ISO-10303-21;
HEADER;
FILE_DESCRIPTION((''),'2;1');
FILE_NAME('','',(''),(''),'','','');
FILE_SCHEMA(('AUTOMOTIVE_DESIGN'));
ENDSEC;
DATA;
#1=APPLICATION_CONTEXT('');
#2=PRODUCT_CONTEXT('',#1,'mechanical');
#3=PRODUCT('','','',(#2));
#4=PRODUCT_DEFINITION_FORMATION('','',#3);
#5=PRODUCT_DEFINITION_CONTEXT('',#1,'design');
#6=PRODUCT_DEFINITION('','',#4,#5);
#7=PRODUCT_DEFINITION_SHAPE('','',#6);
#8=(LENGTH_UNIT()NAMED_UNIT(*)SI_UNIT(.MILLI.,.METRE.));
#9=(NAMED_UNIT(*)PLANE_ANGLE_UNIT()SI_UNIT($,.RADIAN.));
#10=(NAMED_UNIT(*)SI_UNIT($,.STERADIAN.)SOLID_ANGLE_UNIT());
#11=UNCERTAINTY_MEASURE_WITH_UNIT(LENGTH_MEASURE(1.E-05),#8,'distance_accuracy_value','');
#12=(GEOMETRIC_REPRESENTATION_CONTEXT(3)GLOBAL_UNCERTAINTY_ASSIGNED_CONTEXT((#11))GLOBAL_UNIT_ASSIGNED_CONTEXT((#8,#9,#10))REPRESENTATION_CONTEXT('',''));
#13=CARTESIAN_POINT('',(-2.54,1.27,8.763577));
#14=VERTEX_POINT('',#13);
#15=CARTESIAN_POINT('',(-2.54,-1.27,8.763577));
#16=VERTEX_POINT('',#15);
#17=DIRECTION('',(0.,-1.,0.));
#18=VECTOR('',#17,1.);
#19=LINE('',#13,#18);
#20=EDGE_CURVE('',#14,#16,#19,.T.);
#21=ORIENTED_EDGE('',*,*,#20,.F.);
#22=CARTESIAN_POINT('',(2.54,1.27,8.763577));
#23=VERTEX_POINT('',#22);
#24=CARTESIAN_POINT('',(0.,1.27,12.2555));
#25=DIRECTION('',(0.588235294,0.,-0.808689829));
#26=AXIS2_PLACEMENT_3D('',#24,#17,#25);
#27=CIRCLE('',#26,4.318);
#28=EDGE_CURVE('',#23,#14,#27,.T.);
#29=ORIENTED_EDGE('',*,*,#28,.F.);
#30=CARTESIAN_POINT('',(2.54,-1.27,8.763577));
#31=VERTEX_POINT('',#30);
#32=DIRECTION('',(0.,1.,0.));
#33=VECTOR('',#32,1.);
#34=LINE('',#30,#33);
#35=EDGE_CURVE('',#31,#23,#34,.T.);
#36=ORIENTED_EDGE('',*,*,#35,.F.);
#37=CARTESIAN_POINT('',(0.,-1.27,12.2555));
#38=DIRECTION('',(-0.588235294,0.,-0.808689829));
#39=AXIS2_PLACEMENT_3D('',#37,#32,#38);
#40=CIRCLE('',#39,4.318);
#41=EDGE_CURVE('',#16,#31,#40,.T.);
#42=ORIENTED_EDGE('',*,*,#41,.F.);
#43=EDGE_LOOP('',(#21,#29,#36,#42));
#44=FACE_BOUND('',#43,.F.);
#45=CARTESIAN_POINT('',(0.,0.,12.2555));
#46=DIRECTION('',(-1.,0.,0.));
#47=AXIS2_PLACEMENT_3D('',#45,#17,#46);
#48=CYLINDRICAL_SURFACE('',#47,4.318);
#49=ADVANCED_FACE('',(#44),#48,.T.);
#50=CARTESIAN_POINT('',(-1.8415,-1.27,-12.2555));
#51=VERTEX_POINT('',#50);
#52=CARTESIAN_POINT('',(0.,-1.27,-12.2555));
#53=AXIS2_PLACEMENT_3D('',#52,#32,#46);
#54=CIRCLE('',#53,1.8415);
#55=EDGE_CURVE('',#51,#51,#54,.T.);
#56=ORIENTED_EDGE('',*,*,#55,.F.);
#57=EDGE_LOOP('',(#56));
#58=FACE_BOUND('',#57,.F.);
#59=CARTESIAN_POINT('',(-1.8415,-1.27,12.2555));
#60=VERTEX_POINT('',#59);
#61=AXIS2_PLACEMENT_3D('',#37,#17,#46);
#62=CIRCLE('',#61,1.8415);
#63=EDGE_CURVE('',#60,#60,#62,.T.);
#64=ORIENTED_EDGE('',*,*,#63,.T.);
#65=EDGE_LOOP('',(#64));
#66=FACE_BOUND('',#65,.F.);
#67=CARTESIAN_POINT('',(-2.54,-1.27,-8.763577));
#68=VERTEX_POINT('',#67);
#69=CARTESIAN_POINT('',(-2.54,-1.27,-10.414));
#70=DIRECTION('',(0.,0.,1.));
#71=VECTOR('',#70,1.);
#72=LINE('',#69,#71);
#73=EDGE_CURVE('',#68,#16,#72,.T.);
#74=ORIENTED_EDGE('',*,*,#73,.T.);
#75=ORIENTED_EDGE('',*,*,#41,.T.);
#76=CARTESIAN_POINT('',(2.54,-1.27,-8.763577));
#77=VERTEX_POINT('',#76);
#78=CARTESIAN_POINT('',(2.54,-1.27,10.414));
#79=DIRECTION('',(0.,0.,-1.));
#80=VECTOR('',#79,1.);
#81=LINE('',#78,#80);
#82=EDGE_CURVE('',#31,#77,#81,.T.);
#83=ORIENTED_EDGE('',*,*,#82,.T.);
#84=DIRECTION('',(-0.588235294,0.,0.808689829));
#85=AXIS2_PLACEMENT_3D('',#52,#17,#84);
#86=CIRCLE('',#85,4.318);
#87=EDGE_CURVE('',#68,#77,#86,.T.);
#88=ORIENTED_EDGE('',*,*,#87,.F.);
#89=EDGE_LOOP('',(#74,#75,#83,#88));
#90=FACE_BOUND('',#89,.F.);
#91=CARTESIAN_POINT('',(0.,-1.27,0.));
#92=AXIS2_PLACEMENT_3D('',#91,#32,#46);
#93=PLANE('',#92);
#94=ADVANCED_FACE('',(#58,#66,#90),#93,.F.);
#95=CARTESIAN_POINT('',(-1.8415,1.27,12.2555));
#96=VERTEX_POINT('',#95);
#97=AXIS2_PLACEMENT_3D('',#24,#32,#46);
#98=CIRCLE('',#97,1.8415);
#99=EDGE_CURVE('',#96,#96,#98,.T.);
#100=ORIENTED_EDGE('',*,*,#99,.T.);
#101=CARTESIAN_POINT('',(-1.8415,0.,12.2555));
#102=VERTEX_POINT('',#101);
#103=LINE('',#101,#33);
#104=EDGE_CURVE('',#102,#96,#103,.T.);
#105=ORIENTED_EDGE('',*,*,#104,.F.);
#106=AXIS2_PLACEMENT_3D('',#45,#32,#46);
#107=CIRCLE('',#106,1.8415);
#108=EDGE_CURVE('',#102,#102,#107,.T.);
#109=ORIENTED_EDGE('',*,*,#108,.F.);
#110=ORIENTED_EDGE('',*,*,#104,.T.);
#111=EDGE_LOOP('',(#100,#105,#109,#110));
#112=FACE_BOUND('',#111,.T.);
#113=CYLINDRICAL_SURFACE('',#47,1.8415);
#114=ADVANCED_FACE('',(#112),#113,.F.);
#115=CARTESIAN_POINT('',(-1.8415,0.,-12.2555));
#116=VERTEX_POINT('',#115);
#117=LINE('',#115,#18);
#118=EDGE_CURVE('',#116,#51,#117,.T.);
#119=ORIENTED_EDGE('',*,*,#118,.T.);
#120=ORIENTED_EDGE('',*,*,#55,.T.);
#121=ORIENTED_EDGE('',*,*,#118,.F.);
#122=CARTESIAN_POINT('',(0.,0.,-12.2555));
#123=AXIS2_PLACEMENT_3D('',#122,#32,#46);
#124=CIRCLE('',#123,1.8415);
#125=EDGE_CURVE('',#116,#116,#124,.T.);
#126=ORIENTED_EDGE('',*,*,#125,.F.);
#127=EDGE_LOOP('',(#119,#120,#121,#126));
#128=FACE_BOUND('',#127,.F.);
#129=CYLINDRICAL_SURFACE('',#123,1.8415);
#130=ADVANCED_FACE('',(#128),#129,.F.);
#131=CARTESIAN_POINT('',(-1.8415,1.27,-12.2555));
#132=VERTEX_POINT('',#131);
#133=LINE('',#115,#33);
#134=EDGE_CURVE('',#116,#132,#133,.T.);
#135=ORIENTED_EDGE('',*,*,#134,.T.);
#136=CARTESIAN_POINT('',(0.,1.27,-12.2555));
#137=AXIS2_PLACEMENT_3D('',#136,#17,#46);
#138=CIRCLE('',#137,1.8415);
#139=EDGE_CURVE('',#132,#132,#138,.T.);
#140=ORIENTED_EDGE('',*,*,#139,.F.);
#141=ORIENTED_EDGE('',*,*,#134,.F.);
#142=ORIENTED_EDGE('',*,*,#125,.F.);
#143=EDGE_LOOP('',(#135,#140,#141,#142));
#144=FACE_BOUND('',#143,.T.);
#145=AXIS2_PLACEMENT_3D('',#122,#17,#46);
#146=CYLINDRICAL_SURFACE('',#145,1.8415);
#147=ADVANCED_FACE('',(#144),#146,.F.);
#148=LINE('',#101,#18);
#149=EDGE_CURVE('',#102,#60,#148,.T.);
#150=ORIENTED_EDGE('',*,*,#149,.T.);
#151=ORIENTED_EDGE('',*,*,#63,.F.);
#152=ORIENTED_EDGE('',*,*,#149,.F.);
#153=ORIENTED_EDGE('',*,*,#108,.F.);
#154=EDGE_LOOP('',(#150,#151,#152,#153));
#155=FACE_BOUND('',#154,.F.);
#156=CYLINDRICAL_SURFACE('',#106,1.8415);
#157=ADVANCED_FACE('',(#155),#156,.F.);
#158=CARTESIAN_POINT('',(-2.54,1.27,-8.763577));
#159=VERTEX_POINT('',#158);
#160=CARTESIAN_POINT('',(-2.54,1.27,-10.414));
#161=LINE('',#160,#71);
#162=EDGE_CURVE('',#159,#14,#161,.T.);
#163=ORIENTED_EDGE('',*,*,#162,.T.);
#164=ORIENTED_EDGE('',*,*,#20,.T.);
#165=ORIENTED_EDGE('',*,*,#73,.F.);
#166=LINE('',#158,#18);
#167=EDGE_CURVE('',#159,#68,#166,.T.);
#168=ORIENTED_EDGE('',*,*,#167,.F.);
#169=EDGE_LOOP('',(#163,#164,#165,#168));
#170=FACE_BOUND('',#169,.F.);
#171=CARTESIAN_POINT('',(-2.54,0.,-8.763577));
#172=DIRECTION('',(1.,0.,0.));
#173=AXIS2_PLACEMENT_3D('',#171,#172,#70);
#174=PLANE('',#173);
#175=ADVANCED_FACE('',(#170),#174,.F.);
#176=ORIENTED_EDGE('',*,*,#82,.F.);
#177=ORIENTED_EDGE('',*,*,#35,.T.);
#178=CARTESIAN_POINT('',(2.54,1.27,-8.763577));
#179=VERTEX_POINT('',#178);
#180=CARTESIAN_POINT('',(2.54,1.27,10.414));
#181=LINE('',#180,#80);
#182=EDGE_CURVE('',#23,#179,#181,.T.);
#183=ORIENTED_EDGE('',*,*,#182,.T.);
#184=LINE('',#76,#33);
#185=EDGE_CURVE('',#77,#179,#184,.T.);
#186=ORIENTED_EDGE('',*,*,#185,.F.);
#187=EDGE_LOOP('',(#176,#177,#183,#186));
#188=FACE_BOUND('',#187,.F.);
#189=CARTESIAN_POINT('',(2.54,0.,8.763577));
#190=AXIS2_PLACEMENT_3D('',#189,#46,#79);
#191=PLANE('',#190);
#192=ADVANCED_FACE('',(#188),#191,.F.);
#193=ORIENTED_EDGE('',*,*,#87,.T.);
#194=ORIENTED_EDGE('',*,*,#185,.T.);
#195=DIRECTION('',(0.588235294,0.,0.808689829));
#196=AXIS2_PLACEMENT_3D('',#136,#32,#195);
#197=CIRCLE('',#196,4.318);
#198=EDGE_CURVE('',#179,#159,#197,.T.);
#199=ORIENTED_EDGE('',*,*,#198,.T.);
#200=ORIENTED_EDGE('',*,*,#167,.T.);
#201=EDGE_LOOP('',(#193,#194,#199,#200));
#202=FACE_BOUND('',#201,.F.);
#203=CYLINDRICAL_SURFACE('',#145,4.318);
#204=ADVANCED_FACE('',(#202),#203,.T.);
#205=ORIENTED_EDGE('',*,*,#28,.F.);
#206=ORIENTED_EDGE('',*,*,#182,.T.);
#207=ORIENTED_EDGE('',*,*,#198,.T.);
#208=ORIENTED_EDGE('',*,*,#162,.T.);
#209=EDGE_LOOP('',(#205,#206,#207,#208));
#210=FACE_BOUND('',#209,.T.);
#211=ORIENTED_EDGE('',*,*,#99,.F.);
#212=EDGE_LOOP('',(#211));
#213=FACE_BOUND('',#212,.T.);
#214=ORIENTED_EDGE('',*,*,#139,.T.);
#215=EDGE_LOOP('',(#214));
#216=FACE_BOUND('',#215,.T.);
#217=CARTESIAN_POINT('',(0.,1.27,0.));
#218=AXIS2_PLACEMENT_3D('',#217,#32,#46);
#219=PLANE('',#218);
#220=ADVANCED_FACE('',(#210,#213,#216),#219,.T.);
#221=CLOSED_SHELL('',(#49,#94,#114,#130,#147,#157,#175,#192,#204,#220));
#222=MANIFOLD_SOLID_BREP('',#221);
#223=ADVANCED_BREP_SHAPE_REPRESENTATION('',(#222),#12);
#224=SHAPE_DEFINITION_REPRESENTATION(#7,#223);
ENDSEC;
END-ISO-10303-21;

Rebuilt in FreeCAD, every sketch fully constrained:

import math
import FreeCAD as App
import Part
import Sketcher

V = App.Vector
Q = App.Units.Quantity

doc = App.newDocument("Part")
params = doc.addObject("Spreadsheet::Sheet", "Params")
for row, (alias, value) in enumerate([
    ("sketch1_radius", "0.17 in"),
    ("sketch1_diameter", "0.145 in"),
    ("pad1_length", "0.05 in"),
    ("pad1_length2", "0.05 in"),
], start=1):
    params.set(f"A{row}", alias)
    params.set(f"B{row}", "=" + value)
    params.setAlias(f"B{row}", alias)

body = doc.addObject("PartDesign::Body", "Body")

sketch1 = body.newObject("Sketcher::SketchObject", "Sketch")
sketch1.AttachmentSupport = (doc.getObject("XZ_Plane"), [""])
sketch1.MapMode = "FlatFace"
sketch1.addGeometry(Part.ArcOfCircle(Part.Circle(V(0, 12.3, 0), V(0, 0, 1), 4.3), math.radians(-54), math.radians(234)), False)
sketch1.addGeometry(Part.LineSegment(V(2.5, 8.8, 0), V(2.5, -8.8, 0)), False)
sketch1.addGeometry(Part.ArcOfCircle(Part.Circle(V(0, -12.3, 0), V(0, 0, 1), 4.3), math.radians(126), math.radians(414)), False)
sketch1.addGeometry(Part.LineSegment(V(-2.5, -8.8, 0), V(-2.5, 8.8, 0)), False)
sketch1.addGeometry(Part.Circle(V(0, 12.3, 0), V(0, 0, 1), 1.8), False)
sketch1.addGeometry(Part.Circle(V(0, -12.3, 0), V(0, 0, 1), 1.8), False)
sketch1.addConstraint(Sketcher.Constraint("Coincident", 0, 1, 1, 1))
sketch1.addConstraint(Sketcher.Constraint("Coincident", 1, 2, 2, 2))
sketch1.addConstraint(Sketcher.Constraint("Coincident", 2, 1, 3, 1))
sketch1.addConstraint(Sketcher.Constraint("Coincident", 3, 2, 0, 2))
sketch1.addConstraint(Sketcher.Constraint("Vertical", 1))
sketch1.addConstraint(Sketcher.Constraint("Vertical", 3))
sketch1.addConstraint(Sketcher.Constraint("Coincident", 4, 3, 0, 3))
sketch1.addConstraint(Sketcher.Constraint("Coincident", 5, 3, 2, 3))
sketch1.addConstraint(Sketcher.Constraint("Equal", 0, 2))
sketch1.addConstraint(Sketcher.Constraint("Equal", 4, 5))
sketch1.addConstraint(Sketcher.Constraint("Symmetric", 0, 3, 2, 3, -1, 1))
sketch1.addConstraint(Sketcher.Constraint("Symmetric", 1, 2, 2, 1, -2))
sketch1.addConstraint(Sketcher.Constraint("Radius", 0, Q("0.17 in")))
sketch1.addConstraint(Sketcher.Constraint("Diameter", 4, Q("0.145 in")))
sketch1.addConstraint(Sketcher.Constraint("DistanceX", -1, 1, 0, 1, Q("0.1 in")))
sketch1.addConstraint(Sketcher.Constraint("DistanceY", 2, 3, 0, 3, Q("0.965 in")))
sketch1.setExpression("Constraints[12]", "Params.sketch1_radius")
sketch1.setExpression("Constraints[13]", "Params.sketch1_diameter")
pad1 = body.newObject("PartDesign::Pad", "Pad")
pad1.Profile = sketch1
pad1.Type = "TwoLengths"
pad1.setExpression("Length", "Params.pad1_length")
pad1.setExpression("Length2", "Params.pad1_length2")
pad1.Reversed = True

doc.recompute()
